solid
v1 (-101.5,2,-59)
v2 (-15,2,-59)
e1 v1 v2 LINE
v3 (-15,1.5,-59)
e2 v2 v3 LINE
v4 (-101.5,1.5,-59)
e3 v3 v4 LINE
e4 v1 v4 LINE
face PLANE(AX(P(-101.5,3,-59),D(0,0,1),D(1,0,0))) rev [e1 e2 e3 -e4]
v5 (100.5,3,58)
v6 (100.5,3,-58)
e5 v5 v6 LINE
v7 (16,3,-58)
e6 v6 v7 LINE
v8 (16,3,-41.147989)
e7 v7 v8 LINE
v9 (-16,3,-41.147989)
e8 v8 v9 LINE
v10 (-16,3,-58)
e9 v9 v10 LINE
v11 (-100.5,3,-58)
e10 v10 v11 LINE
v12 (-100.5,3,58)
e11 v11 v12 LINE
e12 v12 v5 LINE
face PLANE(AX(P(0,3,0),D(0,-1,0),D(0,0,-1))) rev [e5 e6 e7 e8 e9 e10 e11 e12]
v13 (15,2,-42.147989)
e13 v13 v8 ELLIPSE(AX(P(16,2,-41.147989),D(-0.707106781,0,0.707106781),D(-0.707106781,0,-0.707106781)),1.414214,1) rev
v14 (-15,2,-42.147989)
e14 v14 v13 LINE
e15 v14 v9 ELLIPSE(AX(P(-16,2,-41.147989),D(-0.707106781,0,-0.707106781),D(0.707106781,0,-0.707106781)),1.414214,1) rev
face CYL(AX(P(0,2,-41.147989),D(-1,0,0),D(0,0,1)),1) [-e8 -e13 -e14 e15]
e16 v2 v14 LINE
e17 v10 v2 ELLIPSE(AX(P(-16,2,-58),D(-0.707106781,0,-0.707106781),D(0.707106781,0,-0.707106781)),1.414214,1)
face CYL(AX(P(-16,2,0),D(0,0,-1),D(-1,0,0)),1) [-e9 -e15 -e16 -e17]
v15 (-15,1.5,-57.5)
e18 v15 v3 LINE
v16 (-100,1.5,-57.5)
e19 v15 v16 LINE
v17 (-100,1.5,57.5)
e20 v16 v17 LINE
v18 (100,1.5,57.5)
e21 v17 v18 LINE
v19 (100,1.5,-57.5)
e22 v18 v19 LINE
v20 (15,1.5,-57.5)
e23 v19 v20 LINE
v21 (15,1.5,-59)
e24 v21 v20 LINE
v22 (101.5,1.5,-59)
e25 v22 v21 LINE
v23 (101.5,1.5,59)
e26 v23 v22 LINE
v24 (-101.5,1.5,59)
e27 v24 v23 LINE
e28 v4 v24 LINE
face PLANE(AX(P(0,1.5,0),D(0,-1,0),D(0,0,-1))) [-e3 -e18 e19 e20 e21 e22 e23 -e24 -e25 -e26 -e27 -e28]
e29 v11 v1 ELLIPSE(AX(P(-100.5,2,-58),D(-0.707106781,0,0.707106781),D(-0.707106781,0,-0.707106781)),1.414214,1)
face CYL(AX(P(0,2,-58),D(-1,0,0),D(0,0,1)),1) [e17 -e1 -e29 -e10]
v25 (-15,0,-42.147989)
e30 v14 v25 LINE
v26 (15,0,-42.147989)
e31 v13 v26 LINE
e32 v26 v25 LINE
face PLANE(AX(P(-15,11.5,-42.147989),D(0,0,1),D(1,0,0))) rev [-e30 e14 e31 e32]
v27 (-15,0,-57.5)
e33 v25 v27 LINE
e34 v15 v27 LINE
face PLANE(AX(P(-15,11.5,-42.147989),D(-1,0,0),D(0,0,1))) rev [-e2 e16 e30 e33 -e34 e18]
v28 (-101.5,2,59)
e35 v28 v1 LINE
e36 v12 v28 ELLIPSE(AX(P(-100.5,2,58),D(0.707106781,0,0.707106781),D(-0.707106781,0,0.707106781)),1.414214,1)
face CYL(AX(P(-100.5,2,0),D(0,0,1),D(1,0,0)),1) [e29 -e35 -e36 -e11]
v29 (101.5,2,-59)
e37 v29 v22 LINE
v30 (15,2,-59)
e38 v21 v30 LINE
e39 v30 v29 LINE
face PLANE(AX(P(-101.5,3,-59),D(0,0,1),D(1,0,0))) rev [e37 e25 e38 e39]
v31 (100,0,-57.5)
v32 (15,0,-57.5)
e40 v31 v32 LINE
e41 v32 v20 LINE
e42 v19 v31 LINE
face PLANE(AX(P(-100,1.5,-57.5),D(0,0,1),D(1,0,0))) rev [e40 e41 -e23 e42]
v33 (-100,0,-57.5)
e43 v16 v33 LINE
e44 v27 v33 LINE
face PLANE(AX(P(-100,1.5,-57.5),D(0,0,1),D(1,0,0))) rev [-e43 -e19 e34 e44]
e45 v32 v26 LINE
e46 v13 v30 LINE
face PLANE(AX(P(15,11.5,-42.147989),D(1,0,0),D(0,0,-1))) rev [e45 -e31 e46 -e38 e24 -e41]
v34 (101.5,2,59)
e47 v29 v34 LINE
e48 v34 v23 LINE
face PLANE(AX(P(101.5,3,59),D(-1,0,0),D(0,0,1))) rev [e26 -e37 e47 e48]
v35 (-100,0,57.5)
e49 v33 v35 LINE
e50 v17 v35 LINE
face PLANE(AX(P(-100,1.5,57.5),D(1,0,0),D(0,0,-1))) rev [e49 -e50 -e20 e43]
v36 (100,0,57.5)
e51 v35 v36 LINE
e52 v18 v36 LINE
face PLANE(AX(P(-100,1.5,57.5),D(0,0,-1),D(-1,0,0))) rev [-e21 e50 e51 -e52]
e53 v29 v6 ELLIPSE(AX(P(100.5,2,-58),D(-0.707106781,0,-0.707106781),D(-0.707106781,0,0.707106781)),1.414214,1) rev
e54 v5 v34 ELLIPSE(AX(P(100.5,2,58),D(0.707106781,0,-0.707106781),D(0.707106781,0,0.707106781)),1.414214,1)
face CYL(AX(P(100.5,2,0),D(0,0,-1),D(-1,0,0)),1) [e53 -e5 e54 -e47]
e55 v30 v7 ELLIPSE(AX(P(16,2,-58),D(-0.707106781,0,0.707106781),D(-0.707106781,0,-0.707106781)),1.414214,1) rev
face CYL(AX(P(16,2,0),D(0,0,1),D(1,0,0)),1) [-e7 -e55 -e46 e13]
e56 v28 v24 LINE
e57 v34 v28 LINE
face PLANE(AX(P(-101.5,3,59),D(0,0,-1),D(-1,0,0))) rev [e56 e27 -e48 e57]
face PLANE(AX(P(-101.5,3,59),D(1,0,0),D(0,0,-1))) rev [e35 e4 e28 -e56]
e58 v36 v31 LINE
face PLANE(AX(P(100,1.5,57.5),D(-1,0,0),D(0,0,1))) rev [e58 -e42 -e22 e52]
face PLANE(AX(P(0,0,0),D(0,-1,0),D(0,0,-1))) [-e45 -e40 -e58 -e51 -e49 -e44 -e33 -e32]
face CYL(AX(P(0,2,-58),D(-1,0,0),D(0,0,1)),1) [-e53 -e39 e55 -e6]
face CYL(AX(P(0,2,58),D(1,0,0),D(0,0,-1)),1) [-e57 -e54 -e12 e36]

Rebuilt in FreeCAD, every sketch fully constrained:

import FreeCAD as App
import Part
import Sketcher

V = App.Vector


def edges_at(feature, points):
    """Names of the edges that pass closest to the given points."""
    edges = feature.Shape.Edges
    near = lambda p: min(range(len(edges)), key=lambda i: edges[i].distToShape(Part.Vertex(*p))[0])
    return sorted({f"Edge{near(p) + 1}" for p in points})

doc = App.newDocument("Part")
body = doc.addObject("PartDesign::Body", "Body")

sketch1 = body.newObject("Sketcher::SketchObject", "Sketch")
sketch1.AttachmentSupport = (doc.getObject("XZ_Plane"), [""])
sketch1.MapMode = "FlatFace"
sketch1.addGeometry([
    Part.LineSegment(V(-100, -58, 0), V(-100, 58, 0)),
    Part.LineSegment(V(-100, 58, 0), V(100, 58, 0)),
    Part.LineSegment(V(100, 58, 0), V(100, -58, 0)),
    Part.LineSegment(V(100, -58, 0), V(-100, -58, 0)),
], False)
sketch1.addConstraint([
    Sketcher.Constraint("Coincident", 0, 2, 1, 1),
    Sketcher.Constraint("Coincident", 1, 2, 2, 1),
    Sketcher.Constraint("Coincident", 2, 2, 3, 1),
    Sketcher.Constraint("Coincident", 3, 2, 0, 1),
    Sketcher.Constraint("Vertical", 0),
    Sketcher.Constraint("Horizontal", 1),
    Sketcher.Constraint("Vertical", 2),
    Sketcher.Constraint("Horizontal", 3),
    Sketcher.Constraint("Symmetric", 0, 2, 2, 2, -1, 1),
    Sketcher.Constraint("DistanceX", 1, 1, 1, 2, 200.0),
    Sketcher.Constraint("DistanceY", 0, 1, 0, 2, 115.0),
])
pad1 = body.newObject("PartDesign::Pad", "Pad")
pad1.Profile = sketch1
pad1.Length = 1.5
pad1.Reversed = True

sketch2 = body.newObject("Sketcher::SketchObject", "Sketch001")
sketch2.AttachmentSupport = (doc.getObject("XZ_Plane"), [""])
sketch2.MapMode = "FlatFace"
sketch2.AttachmentOffset = App.Placement(V(0, 0, -1.5), App.Rotation())
sketch2.addGeometry([
    Part.LineSegment(V(-102, -59, 0), V(-102, 59, 0)),
    Part.LineSegment(V(-102, 59, 0), V(102, 59, 0)),
    Part.LineSegment(V(102, 59, 0), V(102, -59, 0)),
    Part.LineSegment(V(102, -59, 0), V(-102, -59, 0)),
], False)
sketch2.addConstraint([
    Sketcher.Constraint("Coincident", 0, 2, 1, 1),
    Sketcher.Constraint("Coincident", 1, 2, 2, 1),
    Sketcher.Constraint("Coincident", 2, 2, 3, 1),
    Sketcher.Constraint("Coincident", 3, 2, 0, 1),
    Sketcher.Constraint("Vertical", 0),
    Sketcher.Constraint("Horizontal", 1),
    Sketcher.Constraint("Vertical", 2),
    Sketcher.Constraint("Horizontal", 3),
    Sketcher.Constraint("Symmetric", 0, 2, 2, 2, -1, 1),
    Sketcher.Constraint("DistanceX", 1, 1, 1, 2, 203.0),
    Sketcher.Constraint("DistanceY", 0, 1, 0, 2, 118.0),
])
pad2 = body.newObject("PartDesign::Pad", "Pad001")
pad2.Profile = sketch2
pad2.Length = 1.5
pad2.Reversed = True

sketch3 = body.newObject("Sketcher::SketchObject", "Sketch002")
sketch3.AttachmentSupport = (doc.getObject("XZ_Plane"), [""])
sketch3.MapMode = "FlatFace"
sketch3.addGeometry([
    Part.LineSegment(V(-15, -42, 0), V(-15, -61, 0)),
    Part.LineSegment(V(-15, -61, 0), V(15, -61, 0)),
    Part.LineSegment(V(15, -61, 0), V(15, -42, 0)),
    Part.LineSegment(V(15, -42, 0), V(-15, -42, 0)),
], False)
sketch3.addConstraint([
    Sketcher.Constraint("Coincident", 0, 2, 1, 1),
    Sketcher.Constraint("Coincident", 1, 2, 2, 1),
    Sketcher.Constraint("Coincident", 2, 2, 3, 1),
    Sketcher.Constraint("Coincident", 3, 2, 0, 1),
    Sketcher.Constraint("Vertical", 0),
    Sketcher.Constraint("Horizontal", 1),
    Sketcher.Constraint("Vertical", 2),
    Sketcher.Constraint("Horizontal", 3),
    Sketcher.Constraint("DistanceX", 1, 1, 1, 2, 30.0),
    Sketcher.Constraint("DistanceX", 0, 2, -1, 1, 15.0),
    Sketcher.Constraint("DistanceY", 0, 2, 0, 1, 18.472879),
    Sketcher.Constraint("DistanceY", 0, 2, -1, 1, 60.620868),
])
pocket1 = body.newObject("PartDesign::Pocket", "Pocket")
pocket1.Profile = sketch3
pocket1.Length = 11.5
doc.recompute()

fillet = body.newObject("PartDesign::Fillet", "Fillet")
fillet.Base = (pocket1, edges_at(pocket1, [
    (101.5, 3, 0),
    (58.25, 3, -59),
    (-101.5, 3, 0),
    (0, 3, 59),
    (-58.25, 3, -59),
    (0, 3, -42.148),
    (15, 3, -50.574),
    (-15, 3, -50.574),
]))
fillet.Radius = 1

doc.recompute()
